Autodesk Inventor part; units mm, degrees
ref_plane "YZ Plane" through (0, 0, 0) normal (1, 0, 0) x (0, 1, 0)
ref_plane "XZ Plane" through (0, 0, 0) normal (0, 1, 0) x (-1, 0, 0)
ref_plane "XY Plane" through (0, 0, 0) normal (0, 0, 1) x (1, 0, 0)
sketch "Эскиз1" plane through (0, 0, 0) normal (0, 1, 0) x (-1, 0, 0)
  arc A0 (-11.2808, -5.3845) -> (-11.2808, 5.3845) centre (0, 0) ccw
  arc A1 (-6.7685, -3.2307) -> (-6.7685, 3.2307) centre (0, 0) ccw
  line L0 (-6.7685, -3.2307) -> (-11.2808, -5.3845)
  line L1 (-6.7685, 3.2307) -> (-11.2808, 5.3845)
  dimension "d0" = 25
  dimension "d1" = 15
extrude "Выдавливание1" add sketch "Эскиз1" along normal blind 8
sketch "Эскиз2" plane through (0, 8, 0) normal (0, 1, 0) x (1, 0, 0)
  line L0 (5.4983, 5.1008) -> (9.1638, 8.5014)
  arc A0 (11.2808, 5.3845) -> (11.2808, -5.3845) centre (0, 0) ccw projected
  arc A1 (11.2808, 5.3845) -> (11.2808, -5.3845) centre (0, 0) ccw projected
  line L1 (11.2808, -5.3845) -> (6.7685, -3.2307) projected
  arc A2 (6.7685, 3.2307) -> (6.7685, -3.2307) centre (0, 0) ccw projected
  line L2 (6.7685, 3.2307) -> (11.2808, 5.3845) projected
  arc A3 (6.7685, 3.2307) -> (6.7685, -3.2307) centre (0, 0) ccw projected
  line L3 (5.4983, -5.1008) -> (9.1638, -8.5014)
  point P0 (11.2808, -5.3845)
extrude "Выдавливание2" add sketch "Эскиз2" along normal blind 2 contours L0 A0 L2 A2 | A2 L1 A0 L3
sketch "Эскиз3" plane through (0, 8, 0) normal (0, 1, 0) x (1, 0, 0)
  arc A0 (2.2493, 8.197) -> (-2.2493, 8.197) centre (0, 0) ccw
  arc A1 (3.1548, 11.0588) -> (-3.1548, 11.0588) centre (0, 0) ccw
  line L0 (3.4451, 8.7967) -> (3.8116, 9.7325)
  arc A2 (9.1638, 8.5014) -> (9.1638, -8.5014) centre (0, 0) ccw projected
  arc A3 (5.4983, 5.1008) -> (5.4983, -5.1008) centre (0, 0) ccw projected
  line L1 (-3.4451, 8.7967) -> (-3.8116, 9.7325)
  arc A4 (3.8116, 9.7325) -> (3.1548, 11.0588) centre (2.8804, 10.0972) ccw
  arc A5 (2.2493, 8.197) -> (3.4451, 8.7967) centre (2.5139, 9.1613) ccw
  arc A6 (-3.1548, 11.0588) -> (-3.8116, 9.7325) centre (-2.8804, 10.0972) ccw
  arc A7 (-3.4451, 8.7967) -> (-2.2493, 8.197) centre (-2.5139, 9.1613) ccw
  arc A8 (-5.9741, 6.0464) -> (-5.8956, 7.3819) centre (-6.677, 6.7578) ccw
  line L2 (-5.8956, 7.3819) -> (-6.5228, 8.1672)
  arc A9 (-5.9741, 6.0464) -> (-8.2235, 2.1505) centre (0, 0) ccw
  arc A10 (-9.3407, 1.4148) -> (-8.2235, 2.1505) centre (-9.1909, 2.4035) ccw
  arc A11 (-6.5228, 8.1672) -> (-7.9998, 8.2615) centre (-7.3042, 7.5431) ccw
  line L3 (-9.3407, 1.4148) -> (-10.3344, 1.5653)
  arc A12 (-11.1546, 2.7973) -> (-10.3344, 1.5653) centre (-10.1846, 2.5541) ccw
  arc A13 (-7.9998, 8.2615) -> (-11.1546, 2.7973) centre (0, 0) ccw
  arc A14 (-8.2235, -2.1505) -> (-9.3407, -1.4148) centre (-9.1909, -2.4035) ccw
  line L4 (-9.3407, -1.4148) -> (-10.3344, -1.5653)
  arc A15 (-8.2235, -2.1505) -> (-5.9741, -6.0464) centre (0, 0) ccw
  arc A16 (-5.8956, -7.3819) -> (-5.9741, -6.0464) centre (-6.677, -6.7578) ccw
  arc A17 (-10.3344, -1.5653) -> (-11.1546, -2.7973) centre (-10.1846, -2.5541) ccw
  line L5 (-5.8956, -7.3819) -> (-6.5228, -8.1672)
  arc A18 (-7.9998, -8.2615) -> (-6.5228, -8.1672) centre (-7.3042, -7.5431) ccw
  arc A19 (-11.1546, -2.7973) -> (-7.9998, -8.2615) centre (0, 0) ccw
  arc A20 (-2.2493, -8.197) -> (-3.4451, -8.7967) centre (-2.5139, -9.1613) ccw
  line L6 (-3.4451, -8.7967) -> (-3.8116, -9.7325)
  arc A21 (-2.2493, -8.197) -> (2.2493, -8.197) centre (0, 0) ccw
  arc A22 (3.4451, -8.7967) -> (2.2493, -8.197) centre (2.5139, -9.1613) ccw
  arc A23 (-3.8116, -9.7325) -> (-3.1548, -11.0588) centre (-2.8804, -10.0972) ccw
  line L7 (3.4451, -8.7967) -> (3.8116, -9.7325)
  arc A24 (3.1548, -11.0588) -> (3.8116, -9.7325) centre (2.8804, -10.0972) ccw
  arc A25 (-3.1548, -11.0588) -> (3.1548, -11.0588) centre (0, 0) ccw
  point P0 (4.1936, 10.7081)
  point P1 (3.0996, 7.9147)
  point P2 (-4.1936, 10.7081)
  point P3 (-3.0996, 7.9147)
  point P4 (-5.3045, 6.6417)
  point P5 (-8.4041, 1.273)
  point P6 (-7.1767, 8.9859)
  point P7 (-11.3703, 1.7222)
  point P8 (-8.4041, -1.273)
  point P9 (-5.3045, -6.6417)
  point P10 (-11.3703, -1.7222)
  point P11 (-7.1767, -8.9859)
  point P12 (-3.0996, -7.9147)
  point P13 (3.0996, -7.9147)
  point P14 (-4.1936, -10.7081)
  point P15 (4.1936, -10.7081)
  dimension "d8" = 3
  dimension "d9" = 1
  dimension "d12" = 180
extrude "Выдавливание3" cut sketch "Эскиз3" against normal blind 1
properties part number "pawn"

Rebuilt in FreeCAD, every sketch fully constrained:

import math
import FreeCAD as App
import Part
import Sketcher
from FreeCAD import Vector

doc = App.newDocument("Part")
body = doc.addObject("PartDesign::Body", "Body")

sketch1 = body.newObject("Sketcher::SketchObject", "Sketch")
sketch1.AttachmentSupport = (doc.getObject("XZ_Plane"), [""])
sketch1.MapMode = "FlatFace"
sketch1.addGeometry(Part.LineSegment(Vector(6.7685, -3.2307, 0), Vector(11.2808, -5.3845, 0)), False)
sketch1.addGeometry(Part.ArcOfCircle(Part.Circle(Vector(0, 0, 0), Vector(0, 0, 1), 12.499972), math.radians(25.515864), math.radians(334.484136)), False)
sketch1.addGeometry(Part.LineSegment(Vector(11.2808, 5.3845, 0), Vector(6.7685, 3.2307, 0)), False)
sketch1.addGeometry(Part.ArcOfCircle(Part.Circle(Vector(0, 0, 0), Vector(0, 0, 1), 7.500001), math.radians(25.515798), math.radians(334.484202)), False)
sketch1.addConstraint(Sketcher.Constraint("Coincident", 0, 2, 1, 2))
sketch1.addConstraint(Sketcher.Constraint("Coincident", 1, 1, 2, 1))
sketch1.addConstraint(Sketcher.Constraint("Coincident", 2, 2, 3, 1))
sketch1.addConstraint(Sketcher.Constraint("Coincident", 3, 2, 0, 1))
sketch1.addConstraint(Sketcher.Constraint("Coincident", 1, 3, -1, 1))
sketch1.addConstraint(Sketcher.Constraint("Coincident", 3, 3, -1, 1))
sketch1.addConstraint(Sketcher.Constraint("Vertical", 0, 2, 1, 1))
sketch1.addConstraint(Sketcher.Constraint("Vertical", 2, 2, 3, 2))
sketch1.addConstraint(Sketcher.Constraint("Radius", 1, 12.5))
sketch1.addConstraint(Sketcher.Constraint("Radius", 3, 7.5))
sketch1.addConstraint(Sketcher.Constraint("DistanceY", 0, 2, 1, 1, 10.769))
sketch1.addConstraint(Sketcher.Constraint("DistanceX", -1, 1, 2, 2, 6.7685))
pad1 = body.newObject("PartDesign::Pad", "Pad")
pad1.Profile = sketch1
pad1.Length = 8
pad1.Reversed = True

sketch2 = body.newObject("Sketcher::SketchObject", "Sketch001")
sketch2.AttachmentSupport = (doc.getObject("XZ_Plane"), [""])
sketch2.MapMode = "FlatFace"
sketch2.AttachmentOffset = App.Placement(Vector(0, 0, -8), App.Rotation())
sketch2.addGeometry(Part.LineSegment(Vector(9.1638, -8.5014, 0), Vector(5.4983, -5.1008, 0)), False)
sketch2.addGeometry(Part.ArcOfCircle(Part.Circle(Vector(0, 0, 0), Vector(0, 0, 1), 7.500001), math.radians(-42.852232), math.radians(-25.515798)), False)
sketch2.addGeometry(Part.LineSegment(Vector(6.7685, -3.2307, 0), Vector(11.2808, -5.3845, 0)), False)
sketch2.addGeometry(Part.ArcOfCircle(Part.Circle(Vector(0, 0, 0), Vector(0, 0, 1), 12.499972), math.radians(-42.85256), math.radians(-25.515864)), False)
sketch2.addGeometry(Part.ArcOfCircle(Part.Circle(Vector(0, 0, 0), Vector(0, 0, 1), 7.500001), math.radians(25.515798), math.radians(42.852232)), False)
sketch2.addGeometry(Part.LineSegment(Vector(5.4983, 5.1008, 0), Vector(9.1638, 8.5014, 0)), False)
sketch2.addGeometry(Part.ArcOfCircle(Part.Circle(Vector(0, 0, 0), Vector(0, 0, 1), 12.499972), math.radians(25.515864), math.radians(42.85256)), False)
sketch2.addGeometry(Part.LineSegment(Vector(11.2808, 5.3845, 0), Vector(6.7685, 3.2307, 0)), False)
sketch2.addConstraint(Sketcher.Constraint("Coincident", 0, 2, 1, 1))
sketch2.addConstraint(Sketcher.Constraint("Coincident", 1, 2, 2, 1))
sketch2.addConstraint(Sketcher.Constraint("Coincident", 2, 2, 3, 2))
sketch2.addConstraint(Sketcher.Constraint("Coincident", 3, 1, 0, 1))
sketch2.addConstraint(Sketcher.Constraint("Coincident", 4, 2, 5, 1))
sketch2.addConstraint(Sketcher.Constraint("Coincident", 5, 2, 6, 2))
sketch2.addConstraint(Sketcher.Constraint("Coincident", 6, 1, 7, 1))
sketch2.addConstraint(Sketcher.Constraint("Coincident", 7, 2, 4, 1))
sketch2.addConstraint(Sketcher.Constraint("Coincident", 1, 3, -1, 1))
sketch2.addConstraint(Sketcher.Constraint("Coincident", 3, 3, -1, 1))
sketch2.addConstraint(Sketcher.Constraint("Coincident", 4, 3, -1, 1))
sketch2.addConstraint(Sketcher.Constraint("Coincident", 6, 3, -1, 1))
sketch2.addConstraint(Sketcher.Constraint("Equal", 1, 4))
sketch2.addConstraint(Sketcher.Constraint("Equal", 3, 6))
sketch2.addConstraint(Sketcher.Constraint("Vertical", 0, 2, 4, 2))
sketch2.addConstraint(Sketcher.Constraint("Vertical", 3, 1, 5, 2))
sketch2.addConstraint(Sketcher.Constraint("Vertical", 2, 2, 6, 1))
sketch2.addConstraint(Sketcher.Constraint("Vertical", 1, 2, 7, 2))
sketch2.addConstraint(Sketcher.Constraint("Radius", 1, 7.5))
sketch2.addConstraint(Sketcher.Constraint("Radius", 3, 12.5))
sketch2.addConstraint(Sketcher.Constraint("DistanceY", 0, 2, 1, 2, 1.87))
sketch2.addConstraint(Sketcher.Constraint("DistanceX", 3, 1, 2, 2, 2.117))
sketch2.addConstraint(Sketcher.Constraint("DistanceY", 3, 1, 2, 2, 3.117))
sketch2.addConstraint(Sketcher.Constraint("DistanceY", 1, 2, 5, 2, 11.732))
pad2 = body.newObject("PartDesign::Pad", "Pad001")
pad2.Profile = sketch2
pad2.Length = 2
pad2.Reversed = True

sketch3 = body.newObject("Sketcher::SketchObject", "Sketch002")
sketch3.AttachmentSupport = (doc.getObject("XZ_Plane"), [""])
sketch3.MapMode = "FlatFace"
sketch3.AttachmentOffset = App.Placement(Vector(0, 0, -8), App.Rotation())
sketch3.addGeometry(Part.ArcOfCircle(Part.Circle(Vector(0, 0, 0), Vector(0, 0, 1), 8.500009), math.radians(-105.344567), math.radians(-74.655433)), False)
sketch3.addGeometry(Part.ArcOfCircle(Part.Circle(Vector(2.5139, -9.1613, 0), Vector(0, 0, 1), 0.999944), math.radians(21.382221), math.radians(105.344069)), False)
sketch3.addGeometry(Part.LineSegment(Vector(3.4451, -8.7967, 0), Vector(3.8116, -9.7325, 0)), False)
sketch3.addGeometry(Part.ArcOfCircle(Part.Circle(Vector(2.8804, -10.0972, 0), Vector(0, 0, 1), 1.00007), math.radians(-74.073493), math.radians(21.387556)), False)
sketch3.addGeometry(Part.ArcOfCircle(Part.Circle(Vector(0, 0, 0), Vector(0, 0, 1), 11.499992), math.radians(-105.922128), math.radians(-74.077872)), False)
sketch3.addGeometry(Part.ArcOfCircle(Part.Circle(Vector(-2.8804, -10.0972, 0), Vector(0, 0, 1), 0.999985), math.radians(158.612444), math.radians(254.073493)), False)
sketch3.addGeometry(Part.LineSegment(Vector(-3.8116, -9.7325, 0), Vector(-3.4451, -8.7967, 0)), False)
sketch3.addGeometry(Part.ArcOfCircle(Part.Circle(Vector(-2.5139, -9.1613, 0), Vector(0, 0, 1), 1.000033), math.radians(74.655931), math.radians(158.617779)), False)
sketch3.addGeometry(Part.ArcOfCircle(Part.Circle(Vector(0.001172, 0.000905, 0), Vector(0, 0, 1), 8.501399), math.radians(-165.341052), math.radians(-134.656718)), False)
sketch3.addGeometry(Part.ArcOfCircle(Part.Circle(Vector(-6.677, -6.7578, 0), Vector(0, 0, 1), 1.000079), math.radians(-38.614175), math.radians(45.344346)), False)
sketch3.addGeometry(Part.LineSegment(Vector(-5.8956, -7.3819, 0), Vector(-6.5228, -8.1672, 0)), False)
sketch3.addGeometry(Part.ArcOfCircle(Part.Circle(Vector(-7.3042, -7.5431, 0), Vector(0, 0, 1), 1.000043), math.radians(-134.076216), math.radians(-38.614175)), False)
sketch3.addGeometry(Part.ArcOfCircle(Part.Circle(Vector(0, 0, 0), Vector(0, 0, 1), 11.499999), math.radians(-165.921947), math.radians(-134.077994)), False)
sketch3.addGeometry(Part.ArcOfCircle(Part.Circle(Vector(-10.1846, -2.5541, 0), Vector(0, 0, 1), 1.000023), math.radians(98.614618), math.radians(194.075152)), False)
sketch3.addGeometry(Part.LineSegment(Vector(-10.3344, -1.5653, 0), Vector(-9.3407, -1.4148, 0)), False)
sketch3.addGeometry(Part.ArcOfCircle(Part.Circle(Vector(-9.1909, -2.4035, 0), Vector(0, 0, 1), 0.999984), math.radians(14.656069), math.radians(98.615477)), False)
sketch3.addGeometry(Part.ArcOfCircle(Part.Circle(Vector(-0.00137, 0.000562, 0), Vector(0, 0, 1), 8.498568), math.radians(134.651483), math.radians(165.346287)), False)
sketch3.addGeometry(Part.ArcOfCircle(Part.Circle(Vector(-9.1909, 2.4035, 0), Vector(0, 0, 1), 0.999936), math.radians(-98.615477), math.radians(-14.656069)), False)
sketch3.addGeometry(Part.LineSegment(Vector(-9.3407, 1.4148, 0), Vector(-10.3344, 1.5653, 0)), False)
sketch3.addGeometry(Part.ArcOfCircle(Part.Circle(Vector(-10.1846, 2.5541, 0), Vector(0, 0, 1), 1.000083), math.radians(165.924848), math.radians(261.385382)), False)
sketch3.addGeometry(Part.ArcOfCircle(Part.Circle(Vector(0, 0, 0), Vector(0, 0, 1), 11.499964), math.radians(134.077994), math.radians(165.921947)), False)
sketch3.addGeometry(Part.ArcOfCircle(Part.Circle(Vector(-7.3042, 7.5431, 0), Vector(0, 0, 1), 0.999979), math.radians(38.614175), math.radians(134.076216)), False)
sketch3.addGeometry(Part.LineSegment(Vector(-6.5228, 8.1672, 0), Vector(-5.8956, 7.3819, 0)), False)
sketch3.addGeometry(Part.ArcOfCircle(Part.Circle(Vector(-6.677, 6.7578, 0), Vector(0, 0, 1), 1.000043), math.radians(-45.344346), math.radians(38.614175)), False)
sketch3.addGeometry(Part.ArcOfCircle(Part.Circle(Vector(0, 0, 0), Vector(0, 0, 1), 8.500009), math.radians(74.655433), math.radians(105.344567)), False)
sketch3.addGeometry(Part.ArcOfCircle(Part.Circle(Vector(-2.5139, 9.1613, 0), Vector(0, 0, 1), 0.999944), math.radians(-158.617779), math.radians(-74.655931)), False)
sketch3.addGeometry(Part.LineSegment(Vector(-3.4451, 8.7967, 0), Vector(-3.8116, 9.7325, 0)), False)
sketch3.addGeometry(Part.ArcOfCircle(Part.Circle(Vector(-2.8804, 10.0972, 0), Vector(0, 0, 1), 1.00007), math.radians(105.926507), math.radians(201.387556)), False)
sketch3.addGeometry(Part.ArcOfCircle(Part.Circle(Vector(0, 0, 0), Vector(0, 0, 1), 11.499992), math.radians(74.077872), math.radians(105.922128)), False)
sketch3.addGeometry(Part.ArcOfCircle(Part.Circle(Vector(2.8804, 10.0972, 0), Vector(0, 0, 1), 0.999985), math.radians(-21.387556), math.radians(74.073493)), False)
sketch3.addGeometry(Part.LineSegment(Vector(3.8116, 9.7325, 0), Vector(3.4451, 8.7967, 0)), False)
sketch3.addGeometry(Part.ArcOfCircle(Part.Circle(Vector(2.5139, 9.1613, 0), Vector(0, 0, 1), 1.000033), math.radians(-105.344069), math.radians(-21.382221)), False)
sketch3.addConstraint(Sketcher.Constraint("Coincident", 0, 2, 1, 2))
sketch3.addConstraint(Sketcher.Constraint("Coincident", 1, 1, 2, 1))
sketch3.addConstraint(Sketcher.Constraint("Coincident", 2, 2, 3, 2))
sketch3.addConstraint(Sketcher.Constraint("Coincident", 3, 1, 4, 2))
sketch3.addConstraint(Sketcher.Constraint("Coincident", 4, 1, 5, 2))
sketch3.addConstraint(Sketcher.Constraint("Coincident", 5, 1, 6, 1))
sketch3.addConstraint(Sketcher.Constraint("Coincident", 6, 2, 7, 2))
sketch3.addConstraint(Sketcher.Constraint("Coincident", 7, 1, 0, 1))
sketch3.addConstraint(Sketcher.Constraint("Coincident", 8, 2, 9, 2))
sketch3.addConstraint(Sketcher.Constraint("Coincident", 9, 1, 10, 1))
sketch3.addConstraint(Sketcher.Constraint("Coincident", 10, 2, 11, 2))
sketch3.addConstraint(Sketcher.Constraint("Coincident", 11, 1, 12, 2))
sketch3.addConstraint(Sketcher.Constraint("Coincident", 12, 1, 13, 2))
sketch3.addConstraint(Sketcher.Constraint("Coincident", 13, 1, 14, 1))
sketch3.addConstraint(Sketcher.Constraint("Coincident", 14, 2, 15, 2))
sketch3.addConstraint(Sketcher.Constraint("Coincident", 15, 1, 8, 1))
sketch3.addConstraint(Sketcher.Constraint("Coincident", 16, 2, 17, 2))
sketch3.addConstraint(Sketcher.Constraint("Coincident", 17, 1, 18, 1))
sketch3.addConstraint(Sketcher.Constraint("Coincident", 18, 2, 19, 2))
sketch3.addConstraint(Sketcher.Constraint("Coincident", 19, 1, 20, 2))
sketch3.addConstraint(Sketcher.Constraint("Coincident", 20, 1, 21, 2))
sketch3.addConstraint(Sketcher.Constraint("Coincident", 21, 1, 22, 1))
sketch3.addConstraint(Sketcher.Constraint("Coincident", 22, 2, 23, 2))
sketch3.addConstraint(Sketcher.Constraint("Coincident", 23, 1, 16, 1))
sketch3.addConstraint(Sketcher.Constraint("Coincident", 24, 2, 25, 2))
sketch3.addConstraint(Sketcher.Constraint("Coincident", 25, 1, 26, 1))
sketch3.addConstraint(Sketcher.Constraint("Coincident", 26, 2, 27, 2))
sketch3.addConstraint(Sketcher.Constraint("Coincident", 27, 1, 28, 2))
sketch3.addConstraint(Sketcher.Constraint("Coincident", 28, 1, 29, 2))
sketch3.addConstraint(Sketcher.Constraint("Coincident", 29, 1, 30, 1))
sketch3.addConstraint(Sketcher.Constraint("Coincident", 30, 2, 31, 2))
sketch3.addConstraint(Sketcher.Constraint("Coincident", 31, 1, 24, 1))
sketch3.addConstraint(Sketcher.Constraint("Coincident", 0, 3, -1, 1))
sketch3.addConstraint(Sketcher.Constraint("Coincident", 4, 3, -1, 1))
sketch3.addConstraint(Sketcher.Constraint("Coincident", 12, 3, -1, 1))
sketch3.addConstraint(Sketcher.Constraint("Coincident", 20, 3, -1, 1))
sketch3.addConstraint(Sketcher.Constraint("Coincident", 24, 3, -1, 1))
sketch3.addConstraint(Sketcher.Constraint("Coincident", 28, 3, -1, 1))
sketch3.addConstraint(Sketcher.Constraint("Radius", 1, 1.0))
sketch3.addConstraint(Sketcher.Constraint("Radius", 3, 1.0))
sketch3.addConstraint(Sketcher.Constraint("Radius", 5, 1.0))
sketch3.addConstraint(Sketcher.Constraint("Radius", 7, 1.0))
sketch3.addConstraint(Sketcher.Constraint("Radius", 9, 1.0))
sketch3.addConstraint(Sketcher.Constraint("Radius", 11, 1.0))
sketch3.addConstraint(Sketcher.Constraint("Radius", 13, 1.0))
sketch3.addConstraint(Sketcher.Constraint("Radius", 15, 1.0))
sketch3.addConstraint(Sketcher.Constraint("Radius", 17, 1.0))
sketch3.addConstraint(Sketcher.Constraint("Radius", 19, 1.0))
sketch3.addConstraint(Sketcher.Constraint("Radius", 21, 1.0))
sketch3.addConstraint(Sketcher.Constraint("Radius", 23, 1.0))
sketch3.addConstraint(Sketcher.Constraint("Radius", 25, 1.0))
sketch3.addConstraint(Sketcher.Constraint("Radius", 27, 1.0))
sketch3.addConstraint(Sketcher.Constraint("Radius", 29, 1.0))
sketch3.addConstraint(Sketcher.Constraint("Radius", 31, 1.0))
sketch3.addConstraint(Sketcher.Constraint("Radius", 0, 8.5))
sketch3.addConstraint(Sketcher.Constraint("Radius", 4, 11.5))
sketch3.addConstraint(Sketcher.Constraint("Radius", 12, 11.5))
sketch3.addConstraint(Sketcher.Constraint("Radius", 20, 11.5))
sketch3.addConstraint(Sketcher.Constraint("Radius", 24, 8.5))
sketch3.addConstraint(Sketcher.Constraint("Radius", 28, 11.5))
sketch3.addConstraint(Sketcher.Constraint("Radius", 8, 8.5014))
sketch3.addConstraint(Sketcher.Constraint("Radius", 16, 8.4986))
sketch3.addConstraint(Sketcher.Constraint("DistanceX", 11, 3, 8, 2, 1.33))
sketch3.addConstraint(Sketcher.Constraint("DistanceX", 12, 1, 13, 3, 0.97))
sketch3.addConstraint(Sketcher.Constraint("DistanceX", 12, 1, 19, 3, 0.97))
sketch3.addConstraint(Sketcher.Constraint("DistanceX", 19, 1, 19, 3, 0.97))
sketch3.addConstraint(Sketcher.Constraint("DistanceY", 21, 1, 27, 3, 1.93))
sketch3.addConstraint(Sketcher.Constraint("DistanceX", 21, 3, 23, 1, 1.33))
sketch3.addConstraint(Sketcher.Constraint("Distance", 2, 1.005))
sketch3.addConstraint(Sketcher.Constraint("Distance", 6, 1.005))
sketch3.addConstraint(Sketcher.Constraint("Distance", 10, 1.005))
sketch3.addConstraint(Sketcher.Constraint("Distance", 14, 1.005))
sketch3.addConstraint(Sketcher.Constraint("Distance", 18, 1.005))
sketch3.addConstraint(Sketcher.Constraint("Distance", 22, 1.005))
sketch3.addConstraint(Sketcher.Constraint("Distance", 26, 1.005))
sketch3.addConstraint(Sketcher.Constraint("Distance", 30, 1.005))
sketch3.addConstraint(Sketcher.Constraint("DistanceX", -1, 1, 1, 3, 2.514))
sketch3.addConstraint(Sketcher.Constraint("DistanceX", 7, 3, -1, 1, 2.514))
sketch3.addConstraint(Sketcher.Constraint("DistanceY", -1, 1, 8, 3, 0.001))
sketch3.addConstraint(Sketcher.Constraint("DistanceX", 9, 3, -1, 1, 6.677))
sketch3.addConstraint(Sketcher.Constraint("DistanceY", 11, 3, -1, 1, 7.543))
sketch3.addConstraint(Sketcher.Constraint("DistanceY", 13, 3, -1, 1, 2.554))
sketch3.addConstraint(Sketcher.Constraint("DistanceX", 15, 3, -1, 1, 9.191))
sketch3.addConstraint(Sketcher.Constraint("DistanceX", 17, 3, -1, 1, 9.191))
sketch3.addConstraint(Sketcher.Constraint("DistanceY", -1, 1, 21, 3, 7.543))
sketch3.addConstraint(Sketcher.Constraint("DistanceX", 23, 3, -1, 1, 6.677))
sketch3.addConstraint(Sketcher.Constraint("DistanceX", 25, 3, -1, 1, 2.514))
sketch3.addConstraint(Sketcher.Constraint("DistanceX", -1, 1, 31, 3, 2.514))
sketch3.addConstraint(Sketcher.Constraint("DistanceY", 0, 2, -1, 1, 8.197))
sketch3.addConstraint(Sketcher.Constraint("DistanceX", -1, 1, 1, 1, 3.445))
sketch3.addConstraint(Sketcher.Constraint("DistanceY", 3, 1, -1, 1, 11.059))
sketch3.addConstraint(Sketcher.Constraint("DistanceX", 6, 2, -1, 1, 3.445))
sketch3.addConstraint(Sketcher.Constraint("DistanceY", 7, 1, -1, 1, 8.197))
sketch3.addConstraint(Sketcher.Constraint("DistanceY", 9, 1, -1, 1, 7.382))
sketch3.addConstraint(Sketcher.Constraint("DistanceY", -1, 1, 22, 2, 7.382))
sketch3.addConstraint(Sketcher.Constraint("DistanceY", -1, 1, 24, 2, 8.197))
sketch3.addConstraint(Sketcher.Constraint("DistanceX", 25, 1, -1, 1, 3.445))
sketch3.addConstraint(Sketcher.Constraint("DistanceY", -1, 1, 27, 1, 11.059))
sketch3.addConstraint(Sketcher.Constraint("DistanceX", -1, 1, 30, 2, 3.445))
sketch3.addConstraint(Sketcher.Constraint("DistanceY", -1, 1, 31, 1, 8.197))
sketch3.addConstraint(Sketcher.Constraint("DistanceY", 3, 3, 1, 3, 0.936))
sketch3.addConstraint(Sketcher.Constraint("DistanceY", 5, 3, 1, 3, 0.936))
sketch3.addConstraint(Sketcher.Constraint("DistanceX", 7, 3, 8, 3, 2.515))
sketch3.addConstraint(Sketcher.Constraint("DistanceY", 15, 3, 16, 3, 2.404))
sketch3.addConstraint(Sketcher.Constraint("DistanceY", 15, 3, 17, 3, 4.807))
sketch3.addConstraint(Sketcher.Constraint("DistanceY", 25, 3, 29, 3, 0.936))
sketch3.addConstraint(Sketcher.Constraint("DistanceX", 4, 1, 7, 3, 0.641))
sketch3.addConstraint(Sketcher.Constraint("DistanceX", 11, 1, 10, 2, 1.477))
sketch3.addConstraint(Sketcher.Constraint("DistanceY", 12, 1, 13, 1, 1.232))
sketch3.addConstraint(Sketcher.Constraint("DistanceY", 15, 3, 15, 1, 0.253))
sketch3.addConstraint(Sketcher.Constraint("DistanceY", 16, 2, 17, 3, 0.253))
sketch3.addConstraint(Sketcher.Constraint("DistanceX", 19, 3, 17, 1, 0.844))
sketch3.addConstraint(Sketcher.Constraint("DistanceX", 20, 1, 25, 3, 5.486))
sketch3.addConstraint(Sketcher.Constraint("DistanceX", 31, 3, 28, 1, 0.641))
pocket1 = body.newObject("PartDesign::Pocket", "Pocket")
pocket1.Profile = sketch3
pocket1.Length = 1
pocket1.Reversed = True

doc.recompute()
